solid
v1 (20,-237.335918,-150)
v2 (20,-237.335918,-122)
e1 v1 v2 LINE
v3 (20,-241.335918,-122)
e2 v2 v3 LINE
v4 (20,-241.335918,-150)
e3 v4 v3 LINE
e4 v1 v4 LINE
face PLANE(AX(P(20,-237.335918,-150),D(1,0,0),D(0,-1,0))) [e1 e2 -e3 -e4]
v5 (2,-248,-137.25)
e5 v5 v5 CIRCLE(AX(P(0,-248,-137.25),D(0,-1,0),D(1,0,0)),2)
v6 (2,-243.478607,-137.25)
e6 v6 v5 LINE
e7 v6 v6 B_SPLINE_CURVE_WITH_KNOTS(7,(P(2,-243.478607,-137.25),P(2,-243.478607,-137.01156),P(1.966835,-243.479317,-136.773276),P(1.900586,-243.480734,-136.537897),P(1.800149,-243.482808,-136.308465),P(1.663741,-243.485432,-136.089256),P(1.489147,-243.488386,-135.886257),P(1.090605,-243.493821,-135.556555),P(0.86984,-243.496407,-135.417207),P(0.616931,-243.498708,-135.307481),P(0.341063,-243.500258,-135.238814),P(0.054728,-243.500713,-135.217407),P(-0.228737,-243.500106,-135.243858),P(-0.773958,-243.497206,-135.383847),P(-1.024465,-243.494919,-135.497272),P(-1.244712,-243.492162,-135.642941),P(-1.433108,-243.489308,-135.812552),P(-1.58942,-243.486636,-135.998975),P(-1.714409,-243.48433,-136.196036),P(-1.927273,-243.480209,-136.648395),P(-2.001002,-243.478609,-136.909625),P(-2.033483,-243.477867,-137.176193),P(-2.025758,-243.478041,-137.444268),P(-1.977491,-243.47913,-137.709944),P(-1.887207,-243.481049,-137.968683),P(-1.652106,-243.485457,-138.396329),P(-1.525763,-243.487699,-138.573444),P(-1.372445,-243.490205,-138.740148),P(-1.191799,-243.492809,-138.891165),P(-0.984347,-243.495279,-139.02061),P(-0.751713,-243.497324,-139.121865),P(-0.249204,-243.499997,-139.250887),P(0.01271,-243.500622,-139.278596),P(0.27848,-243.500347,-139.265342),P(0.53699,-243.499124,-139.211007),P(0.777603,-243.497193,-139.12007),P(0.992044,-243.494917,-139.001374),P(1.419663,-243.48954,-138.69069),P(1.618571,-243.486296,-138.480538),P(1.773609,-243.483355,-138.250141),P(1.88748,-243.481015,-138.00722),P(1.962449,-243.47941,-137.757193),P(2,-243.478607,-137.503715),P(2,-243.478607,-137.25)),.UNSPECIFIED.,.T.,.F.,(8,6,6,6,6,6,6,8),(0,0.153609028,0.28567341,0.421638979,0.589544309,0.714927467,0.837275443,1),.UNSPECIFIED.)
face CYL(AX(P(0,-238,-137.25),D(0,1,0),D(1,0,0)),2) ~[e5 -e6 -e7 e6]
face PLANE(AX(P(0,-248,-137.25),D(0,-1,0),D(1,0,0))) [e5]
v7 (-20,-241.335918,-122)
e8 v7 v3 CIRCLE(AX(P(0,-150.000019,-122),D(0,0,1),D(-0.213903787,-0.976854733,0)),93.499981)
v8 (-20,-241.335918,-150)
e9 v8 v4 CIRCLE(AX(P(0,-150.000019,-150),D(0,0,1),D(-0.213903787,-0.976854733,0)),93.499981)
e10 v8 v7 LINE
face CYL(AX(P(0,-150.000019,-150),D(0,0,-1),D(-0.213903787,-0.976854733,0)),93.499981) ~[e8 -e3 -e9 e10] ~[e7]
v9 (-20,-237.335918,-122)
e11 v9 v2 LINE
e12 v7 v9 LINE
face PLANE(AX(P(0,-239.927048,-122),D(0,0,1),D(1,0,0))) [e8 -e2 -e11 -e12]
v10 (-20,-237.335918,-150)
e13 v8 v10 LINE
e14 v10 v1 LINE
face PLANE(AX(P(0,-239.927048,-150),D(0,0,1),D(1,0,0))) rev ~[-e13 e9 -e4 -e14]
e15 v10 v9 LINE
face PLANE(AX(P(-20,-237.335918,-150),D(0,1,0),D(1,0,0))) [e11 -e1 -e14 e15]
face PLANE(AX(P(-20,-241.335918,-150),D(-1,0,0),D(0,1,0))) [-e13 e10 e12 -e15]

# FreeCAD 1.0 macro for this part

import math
import FreeCAD as App
import Part
import Sketcher

doc = App.newDocument("Part")
body = doc.addObject("PartDesign::Body", "Body")

# Sketch on XZ plane
sketch1 = body.newObject("Sketcher::SketchObject", "Sketch")
sketch1.AttachmentSupport = (doc.getObject("XZ_Plane"), [""])
sketch1.MapMode = "FlatFace"
sketch1.AttachmentOffset = App.Placement(App.Vector(0, 0, 238), App.Rotation())
sketch1.addGeometry(Part.Circle(App.Vector(0, -147.25, 0), App.Vector(0, 0, 1), 2), False)
sketch1.addConstraint([
    Sketcher.Constraint("PointOnObject", 0, 3, -2),
    Sketcher.Constraint("Diameter", 0, 4.0),
    Sketcher.Constraint("DistanceY", 0, 3, -1, 1, 147.25),
])
pad1 = body.newObject("PartDesign::Pad", "Pad")
pad1.Profile = sketch1
pad1.Length = 10
body2 = doc.addObject("PartDesign::Body", "Body001")

# Sketch on XY plane
sketch2 = body2.newObject("Sketcher::SketchObject", "Sketch001")
sketch2.AttachmentSupport = (doc.getObject("XY_Plane001"), [""])
sketch2.MapMode = "FlatFace"
sketch2.addGeometry([
    Part.ArcOfCircle(Part.Circle(App.Vector(0, -150.000019, 0), App.Vector(0, 0, 1), 93.499981), math.radians(-102.351223), math.radians(-77.648777)),
    Part.LineSegment(App.Vector(20, -241.335918, 0), App.Vector(20, -237.335918, 0)),
    Part.LineSegment(App.Vector(20, -237.335918, 0), App.Vector(-20, -237.335918, 0)),
    Part.LineSegment(App.Vector(-20, -237.335918, 0), App.Vector(-20, -241.335918, 0)),
], False)
sketch2.addConstraint([
    Sketcher.Constraint("Coincident", 0, 2, 1, 1),
    Sketcher.Constraint("Coincident", 1, 2, 2, 1),
    Sketcher.Constraint("Coincident", 2, 2, 3, 1),
    Sketcher.Constraint("Coincident", 3, 2, 0, 1),
    Sketcher.Constraint("Vertical", 1),
    Sketcher.Constraint("Horizontal", 2),
    Sketcher.Constraint("Vertical", 3),
    Sketcher.Constraint("Symmetric", 0, 2, 3, 2, -2),
    Sketcher.Constraint("DistanceX", 2, 2, 2, 1, 40.0),
    Sketcher.Constraint("DistanceY", 1, 1, 1, 2, 4.0),
    Sketcher.Constraint("Radius", 0, 93.499981),
    Sketcher.Constraint("DistanceY", 0, 3, -1, 1, 150.000019),
])
pad2 = body2.newObject("PartDesign::Pad", "Pad001")
pad2.Profile = sketch2
pad2.Length = 28
body3 = doc.addObject("PartDesign::Body", "Body002")
doc.recompute()

body2.Placement = App.Placement(App.Vector(0, 0, -160), App.Rotation(App.Vector(0, 0, 1), 0))
boolean = body3.newObject("PartDesign::Boolean", "Boolean")
boolean.Type = "Fuse"
boolean.addObjects([body2])
doc.recompute()

boolean2 = body3.newObject("PartDesign::Boolean", "Boolean001")
boolean2.Type = "Fuse"
boolean2.addObjects([body])
body4 = doc.addObject("PartDesign::Body", "Body003")
doc.recompute()

body3.Placement = App.Placement(App.Vector(0, 0, 10), App.Rotation(App.Vector(0, 0, 1), 0))
boolean3 = body4.newObject("PartDesign::Boolean", "Boolean002")
boolean3.Type = "Fuse"
boolean3.addObjects([body3])

doc.recompute()
